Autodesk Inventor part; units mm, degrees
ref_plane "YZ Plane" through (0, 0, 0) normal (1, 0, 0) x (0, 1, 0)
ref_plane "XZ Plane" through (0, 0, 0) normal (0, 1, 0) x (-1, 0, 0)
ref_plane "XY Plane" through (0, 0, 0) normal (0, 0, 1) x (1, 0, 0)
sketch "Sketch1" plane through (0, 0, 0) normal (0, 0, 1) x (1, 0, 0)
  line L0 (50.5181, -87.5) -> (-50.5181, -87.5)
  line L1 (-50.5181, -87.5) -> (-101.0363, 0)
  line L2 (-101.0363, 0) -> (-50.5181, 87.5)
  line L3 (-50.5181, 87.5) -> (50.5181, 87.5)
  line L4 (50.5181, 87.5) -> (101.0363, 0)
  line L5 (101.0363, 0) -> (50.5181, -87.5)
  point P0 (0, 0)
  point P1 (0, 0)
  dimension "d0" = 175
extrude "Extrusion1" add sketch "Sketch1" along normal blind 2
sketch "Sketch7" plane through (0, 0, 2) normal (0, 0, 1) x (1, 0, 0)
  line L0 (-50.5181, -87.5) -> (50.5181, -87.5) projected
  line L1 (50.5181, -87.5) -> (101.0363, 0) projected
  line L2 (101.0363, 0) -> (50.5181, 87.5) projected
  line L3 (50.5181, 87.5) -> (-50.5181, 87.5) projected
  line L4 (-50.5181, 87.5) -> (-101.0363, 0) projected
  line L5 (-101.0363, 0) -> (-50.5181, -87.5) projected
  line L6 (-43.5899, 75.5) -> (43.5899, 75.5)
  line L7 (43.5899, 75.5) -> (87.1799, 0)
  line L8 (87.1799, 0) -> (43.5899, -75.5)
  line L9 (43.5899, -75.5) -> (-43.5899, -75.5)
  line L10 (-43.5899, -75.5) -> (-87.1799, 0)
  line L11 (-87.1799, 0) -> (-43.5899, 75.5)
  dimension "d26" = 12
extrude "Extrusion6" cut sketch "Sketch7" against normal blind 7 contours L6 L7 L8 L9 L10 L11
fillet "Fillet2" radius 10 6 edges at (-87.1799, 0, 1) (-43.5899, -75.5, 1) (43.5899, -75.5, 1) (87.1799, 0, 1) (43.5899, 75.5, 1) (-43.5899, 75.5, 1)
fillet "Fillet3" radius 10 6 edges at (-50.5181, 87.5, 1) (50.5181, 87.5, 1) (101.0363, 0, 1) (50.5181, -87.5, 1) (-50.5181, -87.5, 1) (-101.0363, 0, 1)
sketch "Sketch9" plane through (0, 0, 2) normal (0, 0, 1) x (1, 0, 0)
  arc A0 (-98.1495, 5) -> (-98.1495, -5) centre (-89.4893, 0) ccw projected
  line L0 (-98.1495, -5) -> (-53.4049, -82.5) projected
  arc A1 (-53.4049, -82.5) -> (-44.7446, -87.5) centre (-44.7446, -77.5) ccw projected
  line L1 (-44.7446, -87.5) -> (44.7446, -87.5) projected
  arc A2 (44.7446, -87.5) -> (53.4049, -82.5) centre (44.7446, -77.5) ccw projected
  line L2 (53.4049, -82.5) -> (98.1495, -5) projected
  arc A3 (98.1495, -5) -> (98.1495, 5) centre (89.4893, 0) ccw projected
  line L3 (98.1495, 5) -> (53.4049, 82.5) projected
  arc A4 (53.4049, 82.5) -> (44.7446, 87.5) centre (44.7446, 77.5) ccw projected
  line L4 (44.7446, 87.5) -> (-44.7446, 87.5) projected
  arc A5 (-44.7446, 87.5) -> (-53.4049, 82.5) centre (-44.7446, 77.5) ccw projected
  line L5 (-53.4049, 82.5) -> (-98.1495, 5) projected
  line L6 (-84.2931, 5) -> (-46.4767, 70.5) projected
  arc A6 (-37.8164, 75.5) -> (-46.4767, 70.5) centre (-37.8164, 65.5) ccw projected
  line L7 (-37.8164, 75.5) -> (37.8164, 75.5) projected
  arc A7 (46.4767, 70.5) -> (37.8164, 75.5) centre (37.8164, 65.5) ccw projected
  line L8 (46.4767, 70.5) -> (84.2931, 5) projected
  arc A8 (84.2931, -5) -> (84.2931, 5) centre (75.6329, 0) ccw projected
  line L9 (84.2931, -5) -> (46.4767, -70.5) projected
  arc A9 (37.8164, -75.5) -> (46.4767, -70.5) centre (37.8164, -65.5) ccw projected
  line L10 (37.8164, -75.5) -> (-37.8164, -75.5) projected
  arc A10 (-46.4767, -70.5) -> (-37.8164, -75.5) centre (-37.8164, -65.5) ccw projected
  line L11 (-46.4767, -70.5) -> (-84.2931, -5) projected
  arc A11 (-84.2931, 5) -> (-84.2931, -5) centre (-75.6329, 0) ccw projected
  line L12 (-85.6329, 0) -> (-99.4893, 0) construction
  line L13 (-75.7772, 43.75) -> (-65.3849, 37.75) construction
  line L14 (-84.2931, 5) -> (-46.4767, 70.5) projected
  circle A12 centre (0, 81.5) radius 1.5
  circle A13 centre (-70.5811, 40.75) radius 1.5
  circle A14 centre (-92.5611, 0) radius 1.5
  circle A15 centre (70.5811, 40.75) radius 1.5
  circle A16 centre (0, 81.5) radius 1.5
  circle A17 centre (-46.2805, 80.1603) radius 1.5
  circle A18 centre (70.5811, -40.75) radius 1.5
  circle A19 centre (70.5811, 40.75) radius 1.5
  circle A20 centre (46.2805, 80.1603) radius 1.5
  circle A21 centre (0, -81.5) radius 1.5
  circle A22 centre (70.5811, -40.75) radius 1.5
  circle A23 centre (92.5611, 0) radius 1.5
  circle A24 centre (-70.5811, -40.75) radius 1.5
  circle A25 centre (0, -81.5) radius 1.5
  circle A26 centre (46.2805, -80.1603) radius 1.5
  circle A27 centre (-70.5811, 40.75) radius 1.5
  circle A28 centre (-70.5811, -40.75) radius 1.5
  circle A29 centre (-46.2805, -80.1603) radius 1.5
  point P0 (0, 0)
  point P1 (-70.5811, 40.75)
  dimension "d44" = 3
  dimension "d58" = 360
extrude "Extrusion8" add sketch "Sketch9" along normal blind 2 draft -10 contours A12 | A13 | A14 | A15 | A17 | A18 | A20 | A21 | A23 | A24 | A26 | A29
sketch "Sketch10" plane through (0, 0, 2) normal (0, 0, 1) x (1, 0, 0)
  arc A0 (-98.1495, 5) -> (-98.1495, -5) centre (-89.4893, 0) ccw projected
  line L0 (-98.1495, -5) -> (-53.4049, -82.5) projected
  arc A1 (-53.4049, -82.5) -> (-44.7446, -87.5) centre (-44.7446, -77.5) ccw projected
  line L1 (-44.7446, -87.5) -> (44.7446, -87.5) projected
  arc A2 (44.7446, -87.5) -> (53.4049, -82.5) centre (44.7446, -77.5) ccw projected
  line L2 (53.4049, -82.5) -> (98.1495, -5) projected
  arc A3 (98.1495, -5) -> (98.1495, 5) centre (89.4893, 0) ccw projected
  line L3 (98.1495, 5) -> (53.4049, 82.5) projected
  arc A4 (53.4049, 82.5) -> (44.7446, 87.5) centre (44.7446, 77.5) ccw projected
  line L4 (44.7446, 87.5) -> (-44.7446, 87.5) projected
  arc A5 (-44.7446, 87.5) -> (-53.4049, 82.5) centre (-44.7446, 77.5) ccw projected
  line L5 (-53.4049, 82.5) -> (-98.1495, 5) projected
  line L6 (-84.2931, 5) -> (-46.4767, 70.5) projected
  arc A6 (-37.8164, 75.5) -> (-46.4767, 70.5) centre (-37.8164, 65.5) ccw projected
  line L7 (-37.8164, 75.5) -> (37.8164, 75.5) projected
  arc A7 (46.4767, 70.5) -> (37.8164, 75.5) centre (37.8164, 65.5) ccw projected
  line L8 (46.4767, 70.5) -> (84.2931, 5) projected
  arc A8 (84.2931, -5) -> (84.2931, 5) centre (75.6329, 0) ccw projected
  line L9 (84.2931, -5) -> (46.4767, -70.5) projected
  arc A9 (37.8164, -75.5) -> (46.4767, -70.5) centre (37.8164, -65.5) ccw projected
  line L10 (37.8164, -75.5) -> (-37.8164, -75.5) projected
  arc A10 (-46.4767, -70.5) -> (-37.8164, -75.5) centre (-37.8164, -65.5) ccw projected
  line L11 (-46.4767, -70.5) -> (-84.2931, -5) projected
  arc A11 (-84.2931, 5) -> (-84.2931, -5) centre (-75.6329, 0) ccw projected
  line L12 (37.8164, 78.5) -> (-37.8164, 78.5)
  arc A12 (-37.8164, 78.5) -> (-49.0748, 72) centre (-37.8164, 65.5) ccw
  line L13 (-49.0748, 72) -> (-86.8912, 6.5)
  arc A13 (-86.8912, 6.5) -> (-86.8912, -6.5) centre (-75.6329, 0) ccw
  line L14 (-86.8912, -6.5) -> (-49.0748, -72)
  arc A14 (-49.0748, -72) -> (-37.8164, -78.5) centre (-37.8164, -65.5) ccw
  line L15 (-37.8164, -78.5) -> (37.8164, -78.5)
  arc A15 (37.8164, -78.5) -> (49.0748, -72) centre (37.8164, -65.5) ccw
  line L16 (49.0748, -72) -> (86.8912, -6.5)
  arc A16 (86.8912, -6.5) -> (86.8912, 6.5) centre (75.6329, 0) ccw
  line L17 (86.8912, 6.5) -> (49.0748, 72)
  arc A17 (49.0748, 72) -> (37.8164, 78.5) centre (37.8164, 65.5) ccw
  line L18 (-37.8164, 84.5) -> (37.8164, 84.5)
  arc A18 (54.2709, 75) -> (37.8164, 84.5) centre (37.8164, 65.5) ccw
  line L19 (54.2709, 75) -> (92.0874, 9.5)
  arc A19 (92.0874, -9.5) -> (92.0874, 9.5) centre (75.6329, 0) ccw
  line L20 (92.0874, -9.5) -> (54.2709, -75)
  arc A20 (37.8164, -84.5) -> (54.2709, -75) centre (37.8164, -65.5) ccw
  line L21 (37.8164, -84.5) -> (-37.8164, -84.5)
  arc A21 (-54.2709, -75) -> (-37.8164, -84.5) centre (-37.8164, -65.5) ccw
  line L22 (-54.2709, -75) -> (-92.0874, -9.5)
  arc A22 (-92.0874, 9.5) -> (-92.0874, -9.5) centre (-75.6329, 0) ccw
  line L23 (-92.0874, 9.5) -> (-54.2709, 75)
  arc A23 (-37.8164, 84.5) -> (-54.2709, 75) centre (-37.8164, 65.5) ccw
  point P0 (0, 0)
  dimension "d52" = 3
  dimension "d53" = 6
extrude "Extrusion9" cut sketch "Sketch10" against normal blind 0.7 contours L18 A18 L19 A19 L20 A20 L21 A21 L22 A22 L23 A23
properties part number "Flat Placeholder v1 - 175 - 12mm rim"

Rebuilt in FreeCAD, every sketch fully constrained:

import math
import FreeCAD as App
import Part
import Sketcher

V = App.Vector
Q = App.Units.Quantity


def edges_at(feature, points):
    """Names of the edges that pass closest to the given points."""
    edges = feature.Shape.Edges
    near = lambda p: min(range(len(edges)), key=lambda i: edges[i].distToShape(Part.Vertex(*p))[0])
    return sorted({f"Edge{near(p) + 1}" for p in points})

doc = App.newDocument("Part")
body = doc.addObject("PartDesign::Body", "Body")
body.AllowCompound = True

# Sketch on XY plane
sketch1 = body.newObject("Sketcher::SketchObject", "Sketch")
sketch1.AttachmentSupport = (doc.getObject("XY_Plane"), [""])
sketch1.MapMode = "FlatFace"
sketch1.addGeometry([
    Part.LineSegment(V(-51, -88, 0), V(51, -88, 0)),  # 0
    Part.LineSegment(V(51, -88, 0), V(101, 0, 0)),  # 1
    Part.LineSegment(V(101, 0, 0), V(51, 88, 0)),  # 2
    Part.LineSegment(V(51, 88, 0), V(-51, 88, 0)),  # 3
    Part.LineSegment(V(-51, 88, 0), V(-101, 0, 0)),  # 4
    Part.LineSegment(V(-101, 0, 0), V(-51, -88, 0)),  # 5
], False)
sketch1.addConstraint([
    Sketcher.Constraint("Coincident", 0, 2, 1, 1),
    Sketcher.Constraint("Coincident", 1, 2, 2, 1),
    Sketcher.Constraint("Coincident", 2, 2, 3, 1),
    Sketcher.Constraint("Coincident", 3, 2, 4, 1),
    Sketcher.Constraint("Coincident", 4, 2, 5, 1),
    Sketcher.Constraint("Coincident", 5, 2, 0, 1),
    Sketcher.Constraint("Horizontal", 0),
    Sketcher.Constraint("Horizontal", 3),
    Sketcher.Constraint("Symmetric", 0, 2, 3, 2, -1, 1),
    Sketcher.Constraint("Symmetric", 1, 2, 4, 2, -1, 1),
    Sketcher.Constraint("PointOnObject", 1, 2, -1),
    Sketcher.Constraint("Parallel", 2, 5),
    Sketcher.Constraint("Vertical", 0, 2, 2, 2),
    Sketcher.Constraint("DistanceY", 0, 2, 2, 2, 175.0),
    Sketcher.Constraint("Angle", 1, Q("60 deg")),
    Sketcher.Constraint("DistanceX", 0, 1, 0, 2, 101.0362),
])
pad1 = body.newObject("PartDesign::Pad", "Pad")
pad1.Profile = sketch1
pad1.Length = 2

# Sketch on XY plane
sketch2 = body.newObject("Sketcher::SketchObject", "Sketch001")
sketch2.AttachmentSupport = (doc.getObject("XY_Plane"), [""])
sketch2.MapMode = "FlatFace"
sketch2.AttachmentOffset = App.Placement(V(0, 0, 2), App.Rotation())
sketch2.addGeometry([
    Part.LineSegment(V(44, 76, 0), V(-44, 76, 0)),  # 0
    Part.LineSegment(V(-44, 76, 0), V(-87, 0, 0)),  # 1
    Part.LineSegment(V(-87, 0, 0), V(-44, -76, 0)),  # 2
    Part.LineSegment(V(-44, -76, 0), V(44, -76, 0)),  # 3
    Part.LineSegment(V(44, -76, 0), V(87, 0, 0)),  # 4
    Part.LineSegment(V(87, 0, 0), V(44, 76, 0)),  # 5
], False)
sketch2.addConstraint([
    Sketcher.Constraint("Coincident", 0, 2, 1, 1),
    Sketcher.Constraint("Coincident", 1, 2, 2, 1),
    Sketcher.Constraint("Coincident", 2, 2, 3, 1),
    Sketcher.Constraint("Coincident", 3, 2, 4, 1),
    Sketcher.Constraint("Coincident", 4, 2, 5, 1),
    Sketcher.Constraint("Coincident", 5, 2, 0, 1),
    Sketcher.Constraint("Horizontal", 0),
    Sketcher.Constraint("Horizontal", 3),
    Sketcher.Constraint("Symmetric", 0, 2, 3, 2, -1, 1),
    Sketcher.Constraint("Symmetric", 1, 2, 4, 2, -1, 1),
    Sketcher.Constraint("PointOnObject", 1, 2, -1),
    Sketcher.Constraint("Parallel", 2, 5),
    Sketcher.Constraint("Vertical", 0, 2, 2, 2),
    Sketcher.Constraint("Angle", 1, Q("-120 deg")),
    Sketcher.Constraint("DistanceY", 2, 2, 0, 2, 151.0),
    Sketcher.Constraint("DistanceX", 0, 2, -1, 1, 43.59),
])
pocket1 = body.newObject("PartDesign::Pocket", "Pocket")
pocket1.Profile = sketch2
pocket1.Length = 7
doc.recompute()

fillet = body.newObject("PartDesign::Fillet", "Fillet")
fillet.Base = (pocket1, edges_at(pocket1, [
    (-87.18, 0, 1),
    (-43.59, -75.5, 1),
    (43.59, -75.5, 1),
    (87.18, 0, 1),
    (43.59, 75.5, 1),
    (-43.59, 75.5, 1),
]))
fillet.Radius = 10
doc.recompute()

fillet2 = body.newObject("PartDesign::Fillet", "Fillet001")
fillet2.Base = (fillet, edges_at(fillet, [
    (-50.518, 87.5, 1),
    (50.518, 87.5, 1),
    (101.036, 0, 1),
    (50.518, -87.5, 1),
    (-50.518, -87.5, 1),
    (-101.036, 0, 1),
]))
fillet2.Radius = 10

# Sketch on XY plane
sketch3 = body.newObject("Sketcher::SketchObject", "Sketch002")
sketch3.AttachmentSupport = (doc.getObject("XY_Plane"), [""])
sketch3.MapMode = "FlatFace"
sketch3.AttachmentOffset = App.Placement(V(0, 0, 2), App.Rotation())
sketch3.addGeometry([
    Part.Circle(V(0, 81.5, 0), V(0, 0, 1), 1.5),  # 0
    Part.Circle(V(-70.6, 40.8, 0), V(0, 0, 1), 1.5),  # 1
    Part.Circle(V(-92.6, 0, 0), V(0, 0, 1), 1.5),  # 2
    Part.Circle(V(70.6, 40.8, 0), V(0, 0, 1), 1.5),  # 3
    Part.Circle(V(-46.3, 80.2, 0), V(0, 0, 1), 1.5),  # 4
    Part.Circle(V(70.6, -40.8, 0), V(0, 0, 1), 1.5),  # 5
    Part.Circle(V(46.3, 80.2, 0), V(0, 0, 1), 1.5),  # 6
    Part.Circle(V(0, -81.5, 0), V(0, 0, 1), 1.5),  # 7
    Part.Circle(V(92.6, 0, 0), V(0, 0, 1), 1.5),  # 8
    Part.Circle(V(-70.6, -40.8, 0), V(0, 0, 1), 1.5),  # 9
    Part.Circle(V(46.3, -80.2, 0), V(0, 0, 1), 1.5),  # 10
    Part.Circle(V(-46.3, -80.2, 0), V(0, 0, 1), 1.5),  # 11
], False)
sketch3.addConstraint([
    Sketcher.Constraint("Equal", 0, 1),
    Sketcher.Constraint("Equal", 1, 2),
    Sketcher.Constraint("Equal", 2, 3),
    Sketcher.Constraint("Equal", 3, 4),
    Sketcher.Constraint("Equal", 4, 5),
    Sketcher.Constraint("Equal", 5, 6),
    Sketcher.Constraint("Equal", 6, 7),
    Sketcher.Constraint("Equal", 7, 8),
    Sketcher.Constraint("Equal", 8, 9),
    Sketcher.Constraint("Equal", 9, 10),
    Sketcher.Constraint("Equal", 10, 11),
    Sketcher.Constraint("Symmetric", 1, 3, 5, 3, -1, 1),
    Sketcher.Constraint("Symmetric", 0, 3, 7, 3, -1, 1),
    Sketcher.Constraint("Symmetric", 2, 3, 8, 3, -1, 1),
    Sketcher.Constraint("Symmetric", 3, 3, 9, 3, -1, 1),
    Sketcher.Constraint("Symmetric", 4, 3, 10, 3, -1, 1),
    Sketcher.Constraint("Symmetric", 6, 3, 11, 3, -1, 1),
    Sketcher.Constraint("Symmetric", 1, 3, 3, 3, -2),
    Sketcher.Constraint("Symmetric", 4, 3, 6, 3, -2),
    Sketcher.Constraint("PointOnObject", 0, 3, -2),
    Sketcher.Constraint("PointOnObject", 2, 3, -1),
    Sketcher.Constraint("Diameter", 0, 3.0),
    Sketcher.Constraint("DistanceY", 7, 3, 0, 3, 163.0),
    Sketcher.Constraint("DistanceY", 5, 3, 3, 3, 81.5),
    Sketcher.Constraint("DistanceX", 2, 3, 1, 3, 21.98),
    Sketcher.Constraint("DistanceX", 1, 3, -1, 1, 70.581),
    Sketcher.Constraint("DistanceX", 4, 3, 6, 3, 92.561),
    Sketcher.Constraint("DistanceY", -1, 1, 4, 3, 80.1603),
])
pad2 = body.newObject("PartDesign::Pad", "Pad001")
pad2.Profile = sketch3
pad2.Length = 2
pad2.TaperAngle = -10

# Sketch on XY plane
sketch4 = body.newObject("Sketcher::SketchObject", "Sketch003")
sketch4.AttachmentSupport = (doc.getObject("XY_Plane"), [""])
sketch4.MapMode = "FlatFace"
sketch4.AttachmentOffset = App.Placement(V(0, 0, 2), App.Rotation())
sketch4.addGeometry([
    Part.LineSegment(V(38, 84, 0), V(-38, 84, 0)),  # 0
    Part.ArcOfCircle(Part.Circle(V(-38, 66, 0), V(0, 0, 1), 19), math.radians(90), math.radians(150)),  # 1
    Part.LineSegment(V(-54, 75, 0), V(-92, 10, 0)),  # 2
    Part.ArcOfCircle(Part.Circle(V(-76, 0, 0), V(0, 0, 1), 19), math.radians(150), math.radians(210)),  # 3
    Part.LineSegment(V(-92, -10, 0), V(-54, -75, 0)),  # 4
    Part.ArcOfCircle(Part.Circle(V(-38, -66, 0), V(0, 0, 1), 19), math.radians(-150), math.radians(-90)),  # 5
    Part.LineSegment(V(-38, -84, 0), V(38, -84, 0)),  # 6
    Part.ArcOfCircle(Part.Circle(V(38, -66, 0), V(0, 0, 1), 19), math.radians(-90), math.radians(-30)),  # 7
    Part.LineSegment(V(54, -75, 0), V(92, -10, 0)),  # 8
    Part.ArcOfCircle(Part.Circle(V(76, 0, 0), V(0, 0, 1), 19), math.radians(-30), math.radians(30)),  # 9
    Part.LineSegment(V(92, 10, 0), V(54, 75, 0)),  # 10
    Part.ArcOfCircle(Part.Circle(V(38, 66, 0), V(0, 0, 1), 19), math.radians(30), math.radians(90)),  # 11
    Part.LineSegment(V(-38, 78, 0), V(38, 78, 0)),  # 12
    Part.ArcOfCircle(Part.Circle(V(38, 66, 0), V(0, 0, 1), 13), math.radians(30), math.radians(90)),  # 13
    Part.LineSegment(V(49, 72, 0), V(87, 6, 0)),  # 14
    Part.ArcOfCircle(Part.Circle(V(76, 0, 0), V(0, 0, 1), 13), math.radians(-30), math.radians(30)),  # 15
    Part.LineSegment(V(87, -6, 0), V(49, -72, 0)),  # 16
    Part.ArcOfCircle(Part.Circle(V(38, -66, 0), V(0, 0, 1), 13), math.radians(-90), math.radians(-30)),  # 17
    Part.LineSegment(V(38, -78, 0), V(-38, -78, 0)),  # 18
    Part.ArcOfCircle(Part.Circle(V(-38, -66, 0), V(0, 0, 1), 13), math.radians(-150), math.radians(-90)),  # 19
    Part.LineSegment(V(-49, -72, 0), V(-87, -6, 0)),  # 20
    Part.ArcOfCircle(Part.Circle(V(-76, 0, 0), V(0, 0, 1), 13), math.radians(150), math.radians(210)),  # 21
    Part.LineSegment(V(-87, 6, 0), V(-49, 72, 0)),  # 22
    Part.ArcOfCircle(Part.Circle(V(-38, 66, 0), V(0, 0, 1), 13), math.radians(90), math.radians(150)),  # 23
], False)
sketch4.addConstraint([
    Sketcher.Constraint("Tangent", 0, 2, 1, 1),
    Sketcher.Constraint("Tangent", 1, 2, 2, 1),
    Sketcher.Constraint("Tangent", 2, 2, 3, 1),
    Sketcher.Constraint("Tangent", 3, 2, 4, 1),
    Sketcher.Constraint("Tangent", 4, 2, 5, 1),
    Sketcher.Constraint("Tangent", 5, 2, 6, 1),
    Sketcher.Constraint("Tangent", 6, 2, 7, 1),
    Sketcher.Constraint("Tangent", 7, 2, 8, 1),
    Sketcher.Constraint("Tangent", 8, 2, 9, 1),
    Sketcher.Constraint("Tangent", 9, 2, 10, 1),
    Sketcher.Constraint("Tangent", 10, 2, 11, 1),
    Sketcher.Constraint("Tangent", 11, 2, 0, 1),
    Sketcher.Constraint("Tangent", 12, 2, 13, 2),
    Sketcher.Constraint("Tangent", 13, 1, 14, 1),
    Sketcher.Constraint("Tangent", 14, 2, 15, 2),
    Sketcher.Constraint("Tangent", 15, 1, 16, 1),
    Sketcher.Constraint("Tangent", 16, 2, 17, 2),
    Sketcher.Constraint("Tangent", 17, 1, 18, 1),
    Sketcher.Constraint("Tangent", 18, 2, 19, 2),
    Sketcher.Constraint("Tangent", 19, 1, 20, 1),
    Sketcher.Constraint("Tangent", 20, 2, 21, 2),
    Sketcher.Constraint("Tangent", 21, 1, 22, 1),
    Sketcher.Constraint("Tangent", 22, 2, 23, 2),
    Sketcher.Constraint("Tangent", 23, 1, 12, 1),
    Sketcher.Constraint("Horizontal", 0),
    Sketcher.Constraint("Horizontal", 6),
    Sketcher.Constraint("Horizontal", 12),
    Sketcher.Constraint("Horizontal", 18),
    Sketcher.Constraint("Coincident", 13, 3, 11, 3),
    Sketcher.Constraint("Coincident", 15, 3, 9, 3),
    Sketcher.Constraint("Coincident", 17, 3, 7, 3),
    Sketcher.Constraint("Coincident", 19, 3, 5, 3),
    Sketcher.Constraint("Coincident", 21, 3, 3, 3),
    Sketcher.Constraint("Coincident", 23, 3, 1, 3),
    Sketcher.Constraint("Equal", 1, 3),
    Sketcher.Constraint("Equal", 3, 5),
    Sketcher.Constraint("Equal", 5, 7),
    Sketcher.Constraint("Equal", 7, 9),
    Sketcher.Constraint("Equal", 9, 11),
    Sketcher.Constraint("Equal", 13, 15),
    Sketcher.Constraint("Equal", 15, 17),
    Sketcher.Constraint("Equal", 19, 21),
    Sketcher.Constraint("Symmetric", 1, 3, 7, 3, -1, 1),
    Sketcher.Constraint("Symmetric", 3, 3, 9, 3, -1, 1),
    Sketcher.Constraint("Symmetric", 4, 2, 7, 2, -2),
    Sketcher.Constraint("Parallel", 4, 10),
    Sketcher.Constraint("Radius", 1, 19.0),
    Sketcher.Constraint("Radius", 13, 13.0),
    Sketcher.Constraint("DistanceY", 13, 1, 10, 2, 3.0),
    Sketcher.Constraint("DistanceY", -1, 1, 1, 2, 75.0),
    Sketcher.Constraint("DistanceX", 0, 2, 0, 1, 75.6328),
])
pocket2 = body.newObject("PartDesign::Pocket", "Pocket001")
pocket2.Profile = sketch4
pocket2.Length = 0.7

doc.recompute()
